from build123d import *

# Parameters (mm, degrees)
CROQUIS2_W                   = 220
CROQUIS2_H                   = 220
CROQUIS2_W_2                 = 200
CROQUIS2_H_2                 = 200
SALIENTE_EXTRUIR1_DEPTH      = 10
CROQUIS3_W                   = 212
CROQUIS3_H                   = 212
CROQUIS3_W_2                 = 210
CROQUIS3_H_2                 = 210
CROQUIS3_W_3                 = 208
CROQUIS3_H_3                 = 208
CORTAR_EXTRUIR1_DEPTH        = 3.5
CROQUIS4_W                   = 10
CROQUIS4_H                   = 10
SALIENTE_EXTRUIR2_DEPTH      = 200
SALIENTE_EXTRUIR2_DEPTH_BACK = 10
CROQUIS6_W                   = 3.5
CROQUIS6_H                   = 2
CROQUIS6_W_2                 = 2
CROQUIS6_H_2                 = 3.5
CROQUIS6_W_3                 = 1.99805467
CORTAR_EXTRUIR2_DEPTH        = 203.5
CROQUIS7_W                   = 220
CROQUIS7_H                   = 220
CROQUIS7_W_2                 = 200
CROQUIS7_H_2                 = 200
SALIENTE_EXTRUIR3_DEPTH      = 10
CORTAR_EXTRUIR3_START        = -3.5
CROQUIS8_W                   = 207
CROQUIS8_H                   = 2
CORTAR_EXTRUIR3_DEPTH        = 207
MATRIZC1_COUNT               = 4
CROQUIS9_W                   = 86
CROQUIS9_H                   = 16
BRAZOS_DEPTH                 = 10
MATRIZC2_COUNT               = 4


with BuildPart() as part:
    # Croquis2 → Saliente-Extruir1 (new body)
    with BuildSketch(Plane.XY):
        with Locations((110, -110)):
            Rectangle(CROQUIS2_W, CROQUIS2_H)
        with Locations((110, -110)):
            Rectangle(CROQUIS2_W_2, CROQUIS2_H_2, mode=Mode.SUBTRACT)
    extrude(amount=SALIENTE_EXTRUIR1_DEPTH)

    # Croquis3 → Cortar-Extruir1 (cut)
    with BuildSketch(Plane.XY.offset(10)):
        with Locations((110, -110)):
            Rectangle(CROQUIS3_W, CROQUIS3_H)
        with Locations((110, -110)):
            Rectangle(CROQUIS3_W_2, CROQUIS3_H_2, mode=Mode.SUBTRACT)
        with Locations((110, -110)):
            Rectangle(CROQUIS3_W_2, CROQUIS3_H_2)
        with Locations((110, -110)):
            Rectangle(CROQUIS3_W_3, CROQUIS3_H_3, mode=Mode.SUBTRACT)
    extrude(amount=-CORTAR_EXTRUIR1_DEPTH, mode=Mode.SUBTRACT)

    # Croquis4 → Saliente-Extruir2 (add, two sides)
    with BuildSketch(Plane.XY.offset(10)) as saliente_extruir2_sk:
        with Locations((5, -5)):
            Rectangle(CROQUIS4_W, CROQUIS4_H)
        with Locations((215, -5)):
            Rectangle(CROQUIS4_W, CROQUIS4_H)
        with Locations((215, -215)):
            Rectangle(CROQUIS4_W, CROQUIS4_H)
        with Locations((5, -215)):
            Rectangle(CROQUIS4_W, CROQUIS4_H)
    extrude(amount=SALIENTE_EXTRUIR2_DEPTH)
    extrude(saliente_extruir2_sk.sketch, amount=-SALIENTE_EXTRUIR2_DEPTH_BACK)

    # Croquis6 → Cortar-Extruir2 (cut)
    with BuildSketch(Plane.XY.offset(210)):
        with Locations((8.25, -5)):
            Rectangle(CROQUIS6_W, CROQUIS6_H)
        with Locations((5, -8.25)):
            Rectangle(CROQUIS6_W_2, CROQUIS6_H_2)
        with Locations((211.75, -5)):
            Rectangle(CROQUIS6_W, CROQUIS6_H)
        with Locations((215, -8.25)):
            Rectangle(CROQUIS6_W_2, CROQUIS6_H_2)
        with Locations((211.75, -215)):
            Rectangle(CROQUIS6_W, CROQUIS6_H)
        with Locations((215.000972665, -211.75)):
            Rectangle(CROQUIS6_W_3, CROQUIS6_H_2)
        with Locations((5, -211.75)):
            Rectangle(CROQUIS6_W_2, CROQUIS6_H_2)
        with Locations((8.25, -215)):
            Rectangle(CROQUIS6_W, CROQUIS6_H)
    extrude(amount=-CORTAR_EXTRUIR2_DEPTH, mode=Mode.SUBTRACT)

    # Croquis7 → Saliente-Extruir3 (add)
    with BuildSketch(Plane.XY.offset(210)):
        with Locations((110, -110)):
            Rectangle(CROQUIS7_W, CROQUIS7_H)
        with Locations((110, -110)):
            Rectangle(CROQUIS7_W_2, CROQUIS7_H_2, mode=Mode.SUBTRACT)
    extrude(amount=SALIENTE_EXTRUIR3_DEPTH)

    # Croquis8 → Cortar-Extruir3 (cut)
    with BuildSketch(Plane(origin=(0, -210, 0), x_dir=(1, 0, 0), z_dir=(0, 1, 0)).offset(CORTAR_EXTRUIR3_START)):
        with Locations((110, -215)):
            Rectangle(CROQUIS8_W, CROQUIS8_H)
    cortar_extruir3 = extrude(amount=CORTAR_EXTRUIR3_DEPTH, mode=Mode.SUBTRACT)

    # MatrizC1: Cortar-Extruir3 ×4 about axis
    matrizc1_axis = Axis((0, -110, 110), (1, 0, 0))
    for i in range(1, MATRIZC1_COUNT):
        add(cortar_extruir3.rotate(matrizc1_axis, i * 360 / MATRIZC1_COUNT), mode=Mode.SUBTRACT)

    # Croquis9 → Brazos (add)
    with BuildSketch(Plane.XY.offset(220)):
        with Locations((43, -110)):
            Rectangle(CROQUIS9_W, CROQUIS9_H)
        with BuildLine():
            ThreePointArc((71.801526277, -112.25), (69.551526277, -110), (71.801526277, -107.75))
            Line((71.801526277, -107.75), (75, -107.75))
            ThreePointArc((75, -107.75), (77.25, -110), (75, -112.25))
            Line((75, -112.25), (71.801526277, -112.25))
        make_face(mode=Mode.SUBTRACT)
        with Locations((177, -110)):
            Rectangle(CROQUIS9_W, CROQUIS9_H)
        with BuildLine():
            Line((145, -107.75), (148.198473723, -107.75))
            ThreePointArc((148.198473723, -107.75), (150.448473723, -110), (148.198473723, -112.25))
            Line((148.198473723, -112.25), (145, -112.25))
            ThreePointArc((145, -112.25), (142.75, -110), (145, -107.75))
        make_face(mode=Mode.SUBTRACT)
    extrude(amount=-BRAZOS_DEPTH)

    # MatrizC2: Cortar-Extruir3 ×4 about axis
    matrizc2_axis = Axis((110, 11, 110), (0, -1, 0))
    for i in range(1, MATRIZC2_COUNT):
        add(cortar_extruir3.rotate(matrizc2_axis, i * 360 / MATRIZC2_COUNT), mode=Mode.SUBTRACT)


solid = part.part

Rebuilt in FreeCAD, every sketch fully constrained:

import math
import FreeCAD as App
import Part
import Sketcher
from FreeCAD import Vector


def add_polygon(sketch, points):
    """Adds a closed chain of lines whose ends are joined by coincident constraints."""
    first, n = sketch.GeometryCount, len(points)
    for a, b in zip(points, points[1:] + points[:1]):
        sketch.addGeometry(Part.LineSegment(App.Vector(*a, 0), App.Vector(*b, 0)), False)
    for i in range(n):
        sketch.addConstraint(Sketcher.Constraint("Coincident", first + i, 2, first + (i + 1) % n, 1))

doc = App.newDocument("Part")
params = doc.addObject("Spreadsheet::Sheet", "Params")
for row, (alias, value) in enumerate([
    ("sketch1_width", "220 mm"),
    ("sketch1_width2", "200 mm"),
    ("pad1_length", "10 mm"),
    ("sketch2_width", "212 mm"),
    ("sketch2_width2", "208 mm"),
    ("pocket1_length", "3.5 mm"),
    ("sketch3_width", "10 mm"),
    ("pad2_length", "200 mm"),
    ("pad2_length2", "10 mm"),
    ("sketch4_width", "2 mm"),
    ("sketch4_width2", "3.5 mm"),
    ("pocket2_length", "203.5 mm"),
    ("sketch5_width", "220 mm"),
    ("sketch5_width2", "200 mm"),
    ("pad3_length", "10 mm"),
    ("sketch6_width", "207 mm"),
    ("sketch6_height", "2 mm"),
    ("pocket3_length", "207 mm"),
    ("sketch7_width", "86 mm"),
    ("sketch7_height", "16 mm"),
    ("sketch7_radius", "2.25 mm"),
    ("pad4_length", "10 mm"),
], start=1):
    params.set(f"A{row}", alias)
    params.set(f"B{row}", "=" + value)
    params.setAlias(f"B{row}", alias)

body = doc.addObject("PartDesign::Body", "Body")

# Sketch on XY plane
sketch1 = body.newObject("Sketcher::SketchObject", "Sketch")
sketch1.AttachmentSupport = (doc.getObject("XY_Plane"), [""])
sketch1.MapMode = "FlatFace"
add_polygon(sketch1, [(0, 0), (0, -220), (220, -220), (220, 0)])  # lines 0-3
add_polygon(sketch1, [(210, -210), (10, -210), (10, -10), (210, -10)])  # lines 4-7
sketch1.addConstraint(Sketcher.Constraint("Vertical", 0))
sketch1.addConstraint(Sketcher.Constraint("Horizontal", 1))
sketch1.addConstraint(Sketcher.Constraint("Vertical", 2))
sketch1.addConstraint(Sketcher.Constraint("Horizontal", 3))
sketch1.addConstraint(Sketcher.Constraint("Horizontal", 4))
sketch1.addConstraint(Sketcher.Constraint("Vertical", 5))
sketch1.addConstraint(Sketcher.Constraint("Horizontal", 6))
sketch1.addConstraint(Sketcher.Constraint("Vertical", 7))
sketch1.addConstraint(Sketcher.Constraint("Coincident", 3, 2, -1, 1))
sketch1.addConstraint(Sketcher.Constraint("Equal", 3, 0))
sketch1.addConstraint(Sketcher.Constraint("Equal", 6, 5))
sketch1.addConstraint(Sketcher.Constraint("DistanceX", 1, 1, 1, 2, 220.0))
sketch1.addConstraint(Sketcher.Constraint("DistanceX", 4, 2, 4, 1, 200.0))
sketch1.addConstraint(Sketcher.Constraint("DistanceX", -1, 1, 4, 2, 10.0))
sketch1.addConstraint(Sketcher.Constraint("DistanceY", 4, 2, -1, 1, 210.0))
sketch1.setExpression("Constraints[19]", "Params.sketch1_width")
sketch1.setExpression("Constraints[20]", "Params.sketch1_width2")
pad1 = body.newObject("PartDesign::Pad", "Pad")
pad1.Profile = sketch1
pad1.setExpression("Length", "Params.pad1_length")

# Sketch on XY plane
sketch2 = body.newObject("Sketcher::SketchObject", "Sketch001")
sketch2.AttachmentSupport = (doc.getObject("XY_Plane"), [""])
sketch2.MapMode = "FlatFace"
sketch2.AttachmentOffset = App.Placement(Vector(0, 0, 10), App.Rotation())
add_polygon(sketch2, [(4, -4), (4, -216), (216, -216), (216, -4)])  # lines 0-3
add_polygon(sketch2, [(214, -214), (6, -214), (6, -6), (214, -6)])  # lines 4-7
sketch2.addConstraint(Sketcher.Constraint("Vertical", 0))
sketch2.addConstraint(Sketcher.Constraint("Horizontal", 1))
sketch2.addConstraint(Sketcher.Constraint("Vertical", 2))
sketch2.addConstraint(Sketcher.Constraint("Horizontal", 3))
sketch2.addConstraint(Sketcher.Constraint("Horizontal", 4))
sketch2.addConstraint(Sketcher.Constraint("Vertical", 5))
sketch2.addConstraint(Sketcher.Constraint("Horizontal", 6))
sketch2.addConstraint(Sketcher.Constraint("Vertical", 7))
sketch2.addConstraint(Sketcher.Constraint("Equal", 3, 0))
sketch2.addConstraint(Sketcher.Constraint("Equal", 6, 5))
sketch2.addConstraint(Sketcher.Constraint("DistanceX", 1, 1, 1, 2, 212.0))
sketch2.addConstraint(Sketcher.Constraint("DistanceX", 4, 2, 4, 1, 208.0))
sketch2.addConstraint(Sketcher.Constraint("DistanceX", -1, 1, 0, 2, 4.0))
sketch2.addConstraint(Sketcher.Constraint("DistanceY", 0, 2, -1, 1, 216.0))
sketch2.addConstraint(Sketcher.Constraint("DistanceX", -1, 1, 4, 2, 6.0))
sketch2.addConstraint(Sketcher.Constraint("DistanceY", 4, 2, -1, 1, 214.0))
sketch2.setExpression("Constraints[18]", "Params.sketch2_width")
sketch2.setExpression("Constraints[19]", "Params.sketch2_width2")
pocket1 = body.newObject("PartDesign::Pocket", "Pocket")
pocket1.Profile = sketch2
pocket1.setExpression("Length", "Params.pocket1_length")

# Sketch on XY plane
sketch3 = body.newObject("Sketcher::SketchObject", "Sketch002")
sketch3.AttachmentSupport = (doc.getObject("XY_Plane"), [""])
sketch3.MapMode = "FlatFace"
sketch3.AttachmentOffset = App.Placement(Vector(0, 0, 10), App.Rotation())
add_polygon(sketch3, [(0, 0), (0, -10), (10, -10), (10, 0)])  # lines 0-3
add_polygon(sketch3, [(210, 0), (210, -10), (220, -10), (220, 0)])  # lines 4-7
add_polygon(sketch3, [(210, -210), (210, -220), (220, -220), (220, -210)])  # lines 8-11
add_polygon(sketch3, [(0, -210), (0, -220), (10, -220), (10, -210)])  # lines 12-15
sketch3.addConstraint(Sketcher.Constraint("Vertical", 0))
sketch3.addConstraint(Sketcher.Constraint("Horizontal", 1))
sketch3.addConstraint(Sketcher.Constraint("Vertical", 2))
sketch3.addConstraint(Sketcher.Constraint("Horizontal", 3))
sketch3.addConstraint(Sketcher.Constraint("Vertical", 4))
sketch3.addConstraint(Sketcher.Constraint("Horizontal", 5))
sketch3.addConstraint(Sketcher.Constraint("Vertical", 6))
sketch3.addConstraint(Sketcher.Constraint("Horizontal", 7))
sketch3.addConstraint(Sketcher.Constraint("Vertical", 8))
sketch3.addConstraint(Sketcher.Constraint("Horizontal", 9))
sketch3.addConstraint(Sketcher.Constraint("Vertical", 10))
sketch3.addConstraint(Sketcher.Constraint("Horizontal", 11))
sketch3.addConstraint(Sketcher.Constraint("Vertical", 12))
sketch3.addConstraint(Sketcher.Constraint("Horizontal", 13))
sketch3.addConstraint(Sketcher.Constraint("Vertical", 14))
sketch3.addConstraint(Sketcher.Constraint("Horizontal", 15))
sketch3.addConstraint(Sketcher.Constraint("Coincident", 3, 2, -1, 1))
sketch3.addConstraint(Sketcher.Constraint("PointOnObject", 6, 2, -1))
sketch3.addConstraint(Sketcher.Constraint("PointOnObject", 12, 2, -2))
sketch3.addConstraint(Sketcher.Constraint("Horizontal", 1, 2, 4, 2))
sketch3.addConstraint(Sketcher.Constraint("Horizontal", 9, 2, 12, 2))
sketch3.addConstraint(Sketcher.Constraint("Horizontal", 11, 2, 14, 2))
sketch3.addConstraint(Sketcher.Constraint("Vertical", 7, 2, 8, 2))
sketch3.addConstraint(Sketcher.Constraint("Vertical", 6, 2, 9, 2))
sketch3.addConstraint(Sketcher.Constraint("Vertical", 2, 2, 13, 2))
sketch3.addConstraint(Sketcher.Constraint("Equal", 3, 5))
sketch3.addConstraint(Sketcher.Constraint("Equal", 15, 0))
sketch3.addConstraint(Sketcher.Constraint("Equal", 6, 8))
sketch3.addConstraint(Sketcher.Constraint("DistanceX", 1, 1, 1, 2, 10.0))
sketch3.addConstraint(Sketcher.Constraint("DistanceX", -1, 1, 4, 2, 210.0))
sketch3.addConstraint(Sketcher.Constraint("DistanceY", 8, 2, -1, 1, 220.0))
sketch3.setExpression("Constraints[44]", "Params.sketch3_width")
pad2 = body.newObject("PartDesign::Pad", "Pad001")
pad2.Profile = sketch3
pad2.Type = "TwoLengths"
pad2.setExpression("Length", "Params.pad2_length")
pad2.setExpression("Length2", "Params.pad2_length2")

# Sketch on XY plane
sketch4 = body.newObject("Sketcher::SketchObject", "Sketch003")
sketch4.AttachmentSupport = (doc.getObject("XY_Plane"), [""])
sketch4.MapMode = "FlatFace"
sketch4.AttachmentOffset = App.Placement(Vector(0, 0, 210), App.Rotation())
add_polygon(sketch4, [(6.5, -4), (6.5, -6), (10, -6), (10, -4)])  # lines 0-3
add_polygon(sketch4, [(4, -6.5), (4, -10), (6, -10), (6, -6.5)])  # lines 4-7
add_polygon(sketch4, [(210, -4), (210, -6), (213.5, -6), (213.5, -4)])  # lines 8-11
add_polygon(sketch4, [(214, -6.5), (214, -10), (216, -10), (216, -6.5)])  # lines 12-15
add_polygon(sketch4, [(210, -214), (210, -216), (213.5, -216), (213.5, -214)])  # lines 16-19
add_polygon(sketch4, [(214, -210), (214, -213.5), (216, -213.5), (216, -210)])  # lines 20-23
add_polygon(sketch4, [(4, -210), (4, -213.5), (6, -213.5), (6, -210)])  # lines 24-27
add_polygon(sketch4, [(6.5, -214), (6.5, -216), (10, -216), (10, -214)])  # lines 28-31
sketch4.addConstraint(Sketcher.Constraint("Vertical", 0))
sketch4.addConstraint(Sketcher.Constraint("Horizontal", 1))
sketch4.addConstraint(Sketcher.Constraint("Vertical", 2))
sketch4.addConstraint(Sketcher.Constraint("Horizontal", 3))
sketch4.addConstraint(Sketcher.Constraint("Vertical", 4))
sketch4.addConstraint(Sketcher.Constraint("Horizontal", 5))
sketch4.addConstraint(Sketcher.Constraint("Vertical", 6))
sketch4.addConstraint(Sketcher.Constraint("Horizontal", 7))
sketch4.addConstraint(Sketcher.Constraint("Vertical", 8))
sketch4.addConstraint(Sketcher.Constraint("Horizontal", 9))
sketch4.addConstraint(Sketcher.Constraint("Vertical", 10))
sketch4.addConstraint(Sketcher.Constraint("Horizontal", 11))
sketch4.addConstraint(Sketcher.Constraint("Vertical", 12))
sketch4.addConstraint(Sketcher.Constraint("Horizontal", 13))
sketch4.addConstraint(Sketcher.Constraint("Vertical", 14))
sketch4.addConstraint(Sketcher.Constraint("Horizontal", 15))
sketch4.addConstraint(Sketcher.Constraint("Vertical", 16))
sketch4.addConstraint(Sketcher.Constraint("Horizontal", 17))
sketch4.addConstraint(Sketcher.Constraint("Vertical", 18))
sketch4.addConstraint(Sketcher.Constraint("Horizontal", 19))
sketch4.addConstraint(Sketcher.Constraint("Vertical", 20))
sketch4.addConstraint(Sketcher.Constraint("Horizontal", 21))
sketch4.addConstraint(Sketcher.Constraint("Vertical", 22))
sketch4.addConstraint(Sketcher.Constraint("Horizontal", 23))
sketch4.addConstraint(Sketcher.Constraint("Vertical", 24))
sketch4.addConstraint(Sketcher.Constraint("Horizontal", 25))
sketch4.addConstraint(Sketcher.Constraint("Vertical", 26))
sketch4.addConstraint(Sketcher.Constraint("Horizontal", 27))
sketch4.addConstraint(Sketcher.Constraint("Vertical", 28))
sketch4.addConstraint(Sketcher.Constraint("Horizontal", 29))
sketch4.addConstraint(Sketcher.Constraint("Vertical", 30))
sketch4.addConstraint(Sketcher.Constraint("Horizontal", 31))
sketch4.addConstraint(Sketcher.Constraint("Horizontal", 1, 2, 8, 2))
sketch4.addConstraint(Sketcher.Constraint("Horizontal", 3, 2, 10, 2))
sketch4.addConstraint(Sketcher.Constraint("Horizontal", 5, 2, 12, 2))
sketch4.addConstraint(Sketcher.Constraint("Horizontal", 7, 2, 14, 2))
sketch4.addConstraint(Sketcher.Constraint("Horizontal", 21, 2, 24, 2))
sketch4.addConstraint(Sketcher.Constraint("Horizontal", 23, 2, 26, 2))
sketch4.addConstraint(Sketcher.Constraint("Horizontal", 17, 2, 28, 2))
sketch4.addConstraint(Sketcher.Constraint("Horizontal", 19, 2, 30, 2))
sketch4.addConstraint(Sketcher.Constraint("Vertical", 11, 2, 16, 2))
sketch4.addConstraint(Sketcher.Constraint("Vertical", 10, 2, 17, 2))
sketch4.addConstraint(Sketcher.Constraint("Vertical", 14, 2, 21, 2))
sketch4.addConstraint(Sketcher.Constraint("Vertical", 7, 2, 24, 2))
sketch4.addConstraint(Sketcher.Constraint("Vertical", 6, 2, 25, 2))
sketch4.addConstraint(Sketcher.Constraint("Vertical", 3, 2, 28, 2))
sketch4.addConstraint(Sketcher.Constraint("Vertical", 2, 2, 29, 2))
sketch4.addConstraint(Sketcher.Constraint("Equal", 3, 9))
sketch4.addConstraint(Sketcher.Constraint("Equal", 7, 13))
sketch4.addConstraint(Sketcher.Constraint("Equal", 27, 0))
sketch4.addConstraint(Sketcher.Constraint("Equal", 31, 4))
sketch4.addConstraint(Sketcher.Constraint("Equal", 10, 16))
sketch4.addConstraint(Sketcher.Constraint("Equal", 14, 20))
sketch4.addConstraint(Sketcher.Constraint("DistanceX", 5, 1, 5, 2, 2.0))
sketch4.addConstraint(Sketcher.Constraint("DistanceX", 1, 1, 1, 2, 3.5))
sketch4.addConstraint(Sketcher.Constraint("DistanceY", 0, 2, -1, 1, 6.0))
sketch4.addConstraint(Sketcher.Constraint("DistanceX", -1, 1, 1, 2, 10.0))
sketch4.addConstraint(Sketcher.Constraint("DistanceX", -1, 1, 4, 2, 4.0))
sketch4.addConstraint(Sketcher.Constraint("DistanceY", 4, 2, -1, 1, 10.0))
sketch4.addConstraint(Sketcher.Constraint("DistanceX", -1, 1, 8, 2, 210.0))
sketch4.addConstraint(Sketcher.Constraint("DistanceX", -1, 1, 12, 2, 214.0))
sketch4.addConstraint(Sketcher.Constraint("DistanceY", 16, 2, -1, 1, 216.0))
sketch4.addConstraint(Sketcher.Constraint("DistanceY", 22, 2, -1, 1, 210.0))
sketch4.addConstraint(Sketcher.Constraint("DistanceX", 21, 1, 21, 2, 1.998055))
sketch4.setExpression("Constraints[85]", "Params.sketch4_width")
sketch4.setExpression("Constraints[86]", "Params.sketch4_width2")
pocket2 = body.newObject("PartDesign::Pocket", "Pocket001")
pocket2.Profile = sketch4
pocket2.setExpression("Length", "Params.pocket2_length")

# Sketch on XY plane
sketch5 = body.newObject("Sketcher::SketchObject", "Sketch004")
sketch5.AttachmentSupport = (doc.getObject("XY_Plane"), [""])
sketch5.MapMode = "FlatFace"
sketch5.AttachmentOffset = App.Placement(Vector(0, 0, 210), App.Rotation())
add_polygon(sketch5, [(0, 0), (0, -220), (220, -220), (220, 0)])  # lines 0-3
add_polygon(sketch5, [(210, -210), (10, -210), (10, -10), (210, -10)])  # lines 4-7
sketch5.addConstraint(Sketcher.Constraint("Vertical", 0))
sketch5.addConstraint(Sketcher.Constraint("Horizontal", 1))
sketch5.addConstraint(Sketcher.Constraint("Vertical", 2))
sketch5.addConstraint(Sketcher.Constraint("Horizontal", 3))
sketch5.addConstraint(Sketcher.Constraint("Horizontal", 4))
sketch5.addConstraint(Sketcher.Constraint("Vertical", 5))
sketch5.addConstraint(Sketcher.Constraint("Horizontal", 6))
sketch5.addConstraint(Sketcher.Constraint("Vertical", 7))
sketch5.addConstraint(Sketcher.Constraint("Coincident", 3, 2, -1, 1))
sketch5.addConstraint(Sketcher.Constraint("Equal", 3, 0))
sketch5.addConstraint(Sketcher.Constraint("Equal", 6, 5))
sketch5.addConstraint(Sketcher.Constraint("DistanceX", 1, 1, 1, 2, 220.0))
sketch5.addConstraint(Sketcher.Constraint("DistanceX", 4, 2, 4, 1, 200.0))
sketch5.addConstraint(Sketcher.Constraint("DistanceX", -1, 1, 4, 2, 10.0))
sketch5.addConstraint(Sketcher.Constraint("DistanceY", 4, 2, -1, 1, 210.0))
sketch5.setExpression("Constraints[19]", "Params.sketch5_width")
sketch5.setExpression("Constraints[20]", "Params.sketch5_width2")
pad3 = body.newObject("PartDesign::Pad", "Pad002")
pad3.Profile = sketch5
pad3.setExpression("Length", "Params.pad3_length")

# Sketch on XZ plane
sketch6 = body.newObject("Sketcher::SketchObject", "Sketch005")
sketch6.AttachmentSupport = (doc.getObject("XZ_Plane"), [""])
sketch6.MapMode = "FlatFace"
sketch6.AttachmentOffset = App.Placement(Vector(0, 0, 213.5), App.Rotation())
add_polygon(sketch6, [(6.5, 214), (6.5, 216), (213.5, 216), (213.5, 214)])  # lines 0-3
sketch6.addConstraint(Sketcher.Constraint("Vertical", 0))
sketch6.addConstraint(Sketcher.Constraint("Horizontal", 1))
sketch6.addConstraint(Sketcher.Constraint("Vertical", 2))
sketch6.addConstraint(Sketcher.Constraint("Horizontal", 3))
sketch6.addConstraint(Sketcher.Constraint("DistanceX", 1, 1, 1, 2, 207.0))
sketch6.addConstraint(Sketcher.Constraint("DistanceY", 0, 1, 0, 2, 2.0))
sketch6.addConstraint(Sketcher.Constraint("DistanceY", -1, 1, 0, 2, 216.0))
sketch6.addConstraint(Sketcher.Constraint("DistanceX", -1, 1, 0, 2, 6.5))
sketch6.setExpression("Constraints[8]", "Params.sketch6_width")
sketch6.setExpression("Constraints[9]", "Params.sketch6_height")
pocket3 = body.newObject("PartDesign::Pocket", "Pocket002")
pocket3.Profile = sketch6
pocket3.setExpression("Length", "Params.pocket3_length")
doc.recompute()

datumline = body.newObject("PartDesign::Line", "DatumLine")
datumline.Placement = App.Placement(Vector(0, -110, 110), App.Rotation(Vector(0, 0, 1), Vector(1, 0, 0)))
polarpattern = body.newObject("PartDesign::PolarPattern", "PolarPattern")
polarpattern.Originals = [pocket3]
polarpattern.Axis = (datumline, [""])
polarpattern.Angle = 360
polarpattern.Occurrences = 4
body.Tip = polarpattern

# Sketch on XY plane
sketch7 = body.newObject("Sketcher::SketchObject", "Sketch006")
sketch7.AttachmentSupport = (doc.getObject("XY_Plane"), [""])
sketch7.MapMode = "FlatFace"
sketch7.AttachmentOffset = App.Placement(Vector(0, 0, 220), App.Rotation())
add_polygon(sketch7, [(0, -102), (0, -118), (86, -118), (86, -102)])  # lines 0-3
sketch7.addGeometry(Part.LineSegment(Vector(75, -112.2, 0), Vector(71.8, -112.2, 0)), False)  # 4
sketch7.addGeometry(Part.ArcOfCircle(Part.Circle(Vector(71.8, -110, 0), Vector(0, 0, 1), 2.2), math.radians(90), math.radians(270)), False)  # 5
sketch7.addGeometry(Part.LineSegment(Vector(71.8, -107.8, 0), Vector(75, -107.8, 0)), False)  # 6
sketch7.addGeometry(Part.ArcOfCircle(Part.Circle(Vector(75, -110, 0), Vector(0, 0, 1), 2.2), math.radians(-90), math.radians(90)), False)  # 7
add_polygon(sketch7, [(134, -102), (134, -118), (220, -118), (220, -102)])  # lines 8-11
sketch7.addGeometry(Part.ArcOfCircle(Part.Circle(Vector(145, -110, 0), Vector(0, 0, 1), 2.2), math.radians(90), math.radians(270)), False)  # 12
sketch7.addGeometry(Part.LineSegment(Vector(145, -107.8, 0), Vector(148.2, -107.8, 0)), False)  # 13
sketch7.addGeometry(Part.ArcOfCircle(Part.Circle(Vector(148.2, -110, 0), Vector(0, 0, 1), 2.2), math.radians(-90), math.radians(90)), False)  # 14
sketch7.addGeometry(Part.LineSegment(Vector(148.2, -112.2, 0), Vector(145, -112.2, 0)), False)  # 15
sketch7.addConstraint(Sketcher.Constraint("Tangent", 4, 2, 5, 2))
sketch7.addConstraint(Sketcher.Constraint("Tangent", 5, 1, 6, 1))
sketch7.addConstraint(Sketcher.Constraint("Tangent", 6, 2, 7, 2))
sketch7.addConstraint(Sketcher.Constraint("Tangent", 7, 1, 4, 1))
sketch7.addConstraint(Sketcher.Constraint("Tangent", 12, 1, 13, 1))
sketch7.addConstraint(Sketcher.Constraint("Tangent", 13, 2, 14, 2))
sketch7.addConstraint(Sketcher.Constraint("Tangent", 14, 1, 15, 1))
sketch7.addConstraint(Sketcher.Constraint("Tangent", 15, 2, 12, 2))
sketch7.addConstraint(Sketcher.Constraint("Vertical", 0))
sketch7.addConstraint(Sketcher.Constraint("Horizontal", 1))
sketch7.addConstraint(Sketcher.Constraint("Vertical", 2))
sketch7.addConstraint(Sketcher.Constraint("Horizontal", 3))
sketch7.addConstraint(Sketcher.Constraint("Horizontal", 4))
sketch7.addConstraint(Sketcher.Constraint("Horizontal", 6))
sketch7.addConstraint(Sketcher.Constraint("Vertical", 8))
sketch7.addConstraint(Sketcher.Constraint("Horizontal", 9))
sketch7.addConstraint(Sketcher.Constraint("Vertical", 10))
sketch7.addConstraint(Sketcher.Constraint("Horizontal", 11))
sketch7.addConstraint(Sketcher.Constraint("Horizontal", 13))
sketch7.addConstraint(Sketcher.Constraint("Horizontal", 15))
sketch7.addConstraint(Sketcher.Constraint("Equal", 7, 12))
sketch7.addConstraint(Sketcher.Constraint("PointOnObject", 0, 2, -2))
sketch7.addConstraint(Sketcher.Constraint("Horizontal", 7, 3, 12, 3))
sketch7.addConstraint(Sketcher.Constraint("Horizontal", 1, 2, 8, 2))
sketch7.addConstraint(Sketcher.Constraint("Horizontal", 3, 2, 10, 2))
sketch7.addConstraint(Sketcher.Constraint("Equal", 3, 9))
sketch7.addConstraint(Sketcher.Constraint("Equal", 6, 13))
sketch7.addConstraint(Sketcher.Constraint("DistanceX", 1, 1, 1, 2, 86.0))
sketch7.addConstraint(Sketcher.Constraint("DistanceY", 0, 2, 0, 1, 16.0))
sketch7.addConstraint(Sketcher.Constraint("Radius", 5, 2.25))
sketch7.addConstraint(Sketcher.Constraint("DistanceY", 5, 3, -1, 1, 110.0))
sketch7.addConstraint(Sketcher.Constraint("DistanceX", -1, 1, 7, 3, 75.0))
sketch7.addConstraint(Sketcher.Constraint("DistanceX", -1, 1, 12, 3, 145.0))
sketch7.addConstraint(Sketcher.Constraint("DistanceY", 0, 2, -1, 1, 118.0))
sketch7.addConstraint(Sketcher.Constraint("DistanceX", -1, 1, 8, 2, 134.0))
sketch7.addConstraint(Sketcher.Constraint("DistanceX", 4, 2, 4, 1, 3.198474))
sketch7.setExpression("Constraints[35]", "Params.sketch7_width")
sketch7.setExpression("Constraints[36]", "Params.sketch7_height")
sketch7.setExpression("Constraints[37]", "Params.sketch7_radius")
pad4 = body.newObject("PartDesign::Pad", "Pad003")
pad4.Profile = sketch7
pad4.setExpression("Length", "Params.pad4_length")
pad4.Reversed = True
doc.recompute()

datumline2 = body.newObject("PartDesign::Line", "DatumLine001")
datumline2.Placement = App.Placement(Vector(110, 0, 110), App.Rotation(Vector(0, 0, 1), Vector(0, -1, 0)))
polarpattern2 = body.newObject("PartDesign::PolarPattern", "PolarPattern001")
polarpattern2.Originals = [pocket3]
polarpattern2.Axis = (datumline2, [""])
polarpattern2.Angle = 360
polarpattern2.Occurrences = 4
body.Tip = polarpattern2

doc.recompute()
